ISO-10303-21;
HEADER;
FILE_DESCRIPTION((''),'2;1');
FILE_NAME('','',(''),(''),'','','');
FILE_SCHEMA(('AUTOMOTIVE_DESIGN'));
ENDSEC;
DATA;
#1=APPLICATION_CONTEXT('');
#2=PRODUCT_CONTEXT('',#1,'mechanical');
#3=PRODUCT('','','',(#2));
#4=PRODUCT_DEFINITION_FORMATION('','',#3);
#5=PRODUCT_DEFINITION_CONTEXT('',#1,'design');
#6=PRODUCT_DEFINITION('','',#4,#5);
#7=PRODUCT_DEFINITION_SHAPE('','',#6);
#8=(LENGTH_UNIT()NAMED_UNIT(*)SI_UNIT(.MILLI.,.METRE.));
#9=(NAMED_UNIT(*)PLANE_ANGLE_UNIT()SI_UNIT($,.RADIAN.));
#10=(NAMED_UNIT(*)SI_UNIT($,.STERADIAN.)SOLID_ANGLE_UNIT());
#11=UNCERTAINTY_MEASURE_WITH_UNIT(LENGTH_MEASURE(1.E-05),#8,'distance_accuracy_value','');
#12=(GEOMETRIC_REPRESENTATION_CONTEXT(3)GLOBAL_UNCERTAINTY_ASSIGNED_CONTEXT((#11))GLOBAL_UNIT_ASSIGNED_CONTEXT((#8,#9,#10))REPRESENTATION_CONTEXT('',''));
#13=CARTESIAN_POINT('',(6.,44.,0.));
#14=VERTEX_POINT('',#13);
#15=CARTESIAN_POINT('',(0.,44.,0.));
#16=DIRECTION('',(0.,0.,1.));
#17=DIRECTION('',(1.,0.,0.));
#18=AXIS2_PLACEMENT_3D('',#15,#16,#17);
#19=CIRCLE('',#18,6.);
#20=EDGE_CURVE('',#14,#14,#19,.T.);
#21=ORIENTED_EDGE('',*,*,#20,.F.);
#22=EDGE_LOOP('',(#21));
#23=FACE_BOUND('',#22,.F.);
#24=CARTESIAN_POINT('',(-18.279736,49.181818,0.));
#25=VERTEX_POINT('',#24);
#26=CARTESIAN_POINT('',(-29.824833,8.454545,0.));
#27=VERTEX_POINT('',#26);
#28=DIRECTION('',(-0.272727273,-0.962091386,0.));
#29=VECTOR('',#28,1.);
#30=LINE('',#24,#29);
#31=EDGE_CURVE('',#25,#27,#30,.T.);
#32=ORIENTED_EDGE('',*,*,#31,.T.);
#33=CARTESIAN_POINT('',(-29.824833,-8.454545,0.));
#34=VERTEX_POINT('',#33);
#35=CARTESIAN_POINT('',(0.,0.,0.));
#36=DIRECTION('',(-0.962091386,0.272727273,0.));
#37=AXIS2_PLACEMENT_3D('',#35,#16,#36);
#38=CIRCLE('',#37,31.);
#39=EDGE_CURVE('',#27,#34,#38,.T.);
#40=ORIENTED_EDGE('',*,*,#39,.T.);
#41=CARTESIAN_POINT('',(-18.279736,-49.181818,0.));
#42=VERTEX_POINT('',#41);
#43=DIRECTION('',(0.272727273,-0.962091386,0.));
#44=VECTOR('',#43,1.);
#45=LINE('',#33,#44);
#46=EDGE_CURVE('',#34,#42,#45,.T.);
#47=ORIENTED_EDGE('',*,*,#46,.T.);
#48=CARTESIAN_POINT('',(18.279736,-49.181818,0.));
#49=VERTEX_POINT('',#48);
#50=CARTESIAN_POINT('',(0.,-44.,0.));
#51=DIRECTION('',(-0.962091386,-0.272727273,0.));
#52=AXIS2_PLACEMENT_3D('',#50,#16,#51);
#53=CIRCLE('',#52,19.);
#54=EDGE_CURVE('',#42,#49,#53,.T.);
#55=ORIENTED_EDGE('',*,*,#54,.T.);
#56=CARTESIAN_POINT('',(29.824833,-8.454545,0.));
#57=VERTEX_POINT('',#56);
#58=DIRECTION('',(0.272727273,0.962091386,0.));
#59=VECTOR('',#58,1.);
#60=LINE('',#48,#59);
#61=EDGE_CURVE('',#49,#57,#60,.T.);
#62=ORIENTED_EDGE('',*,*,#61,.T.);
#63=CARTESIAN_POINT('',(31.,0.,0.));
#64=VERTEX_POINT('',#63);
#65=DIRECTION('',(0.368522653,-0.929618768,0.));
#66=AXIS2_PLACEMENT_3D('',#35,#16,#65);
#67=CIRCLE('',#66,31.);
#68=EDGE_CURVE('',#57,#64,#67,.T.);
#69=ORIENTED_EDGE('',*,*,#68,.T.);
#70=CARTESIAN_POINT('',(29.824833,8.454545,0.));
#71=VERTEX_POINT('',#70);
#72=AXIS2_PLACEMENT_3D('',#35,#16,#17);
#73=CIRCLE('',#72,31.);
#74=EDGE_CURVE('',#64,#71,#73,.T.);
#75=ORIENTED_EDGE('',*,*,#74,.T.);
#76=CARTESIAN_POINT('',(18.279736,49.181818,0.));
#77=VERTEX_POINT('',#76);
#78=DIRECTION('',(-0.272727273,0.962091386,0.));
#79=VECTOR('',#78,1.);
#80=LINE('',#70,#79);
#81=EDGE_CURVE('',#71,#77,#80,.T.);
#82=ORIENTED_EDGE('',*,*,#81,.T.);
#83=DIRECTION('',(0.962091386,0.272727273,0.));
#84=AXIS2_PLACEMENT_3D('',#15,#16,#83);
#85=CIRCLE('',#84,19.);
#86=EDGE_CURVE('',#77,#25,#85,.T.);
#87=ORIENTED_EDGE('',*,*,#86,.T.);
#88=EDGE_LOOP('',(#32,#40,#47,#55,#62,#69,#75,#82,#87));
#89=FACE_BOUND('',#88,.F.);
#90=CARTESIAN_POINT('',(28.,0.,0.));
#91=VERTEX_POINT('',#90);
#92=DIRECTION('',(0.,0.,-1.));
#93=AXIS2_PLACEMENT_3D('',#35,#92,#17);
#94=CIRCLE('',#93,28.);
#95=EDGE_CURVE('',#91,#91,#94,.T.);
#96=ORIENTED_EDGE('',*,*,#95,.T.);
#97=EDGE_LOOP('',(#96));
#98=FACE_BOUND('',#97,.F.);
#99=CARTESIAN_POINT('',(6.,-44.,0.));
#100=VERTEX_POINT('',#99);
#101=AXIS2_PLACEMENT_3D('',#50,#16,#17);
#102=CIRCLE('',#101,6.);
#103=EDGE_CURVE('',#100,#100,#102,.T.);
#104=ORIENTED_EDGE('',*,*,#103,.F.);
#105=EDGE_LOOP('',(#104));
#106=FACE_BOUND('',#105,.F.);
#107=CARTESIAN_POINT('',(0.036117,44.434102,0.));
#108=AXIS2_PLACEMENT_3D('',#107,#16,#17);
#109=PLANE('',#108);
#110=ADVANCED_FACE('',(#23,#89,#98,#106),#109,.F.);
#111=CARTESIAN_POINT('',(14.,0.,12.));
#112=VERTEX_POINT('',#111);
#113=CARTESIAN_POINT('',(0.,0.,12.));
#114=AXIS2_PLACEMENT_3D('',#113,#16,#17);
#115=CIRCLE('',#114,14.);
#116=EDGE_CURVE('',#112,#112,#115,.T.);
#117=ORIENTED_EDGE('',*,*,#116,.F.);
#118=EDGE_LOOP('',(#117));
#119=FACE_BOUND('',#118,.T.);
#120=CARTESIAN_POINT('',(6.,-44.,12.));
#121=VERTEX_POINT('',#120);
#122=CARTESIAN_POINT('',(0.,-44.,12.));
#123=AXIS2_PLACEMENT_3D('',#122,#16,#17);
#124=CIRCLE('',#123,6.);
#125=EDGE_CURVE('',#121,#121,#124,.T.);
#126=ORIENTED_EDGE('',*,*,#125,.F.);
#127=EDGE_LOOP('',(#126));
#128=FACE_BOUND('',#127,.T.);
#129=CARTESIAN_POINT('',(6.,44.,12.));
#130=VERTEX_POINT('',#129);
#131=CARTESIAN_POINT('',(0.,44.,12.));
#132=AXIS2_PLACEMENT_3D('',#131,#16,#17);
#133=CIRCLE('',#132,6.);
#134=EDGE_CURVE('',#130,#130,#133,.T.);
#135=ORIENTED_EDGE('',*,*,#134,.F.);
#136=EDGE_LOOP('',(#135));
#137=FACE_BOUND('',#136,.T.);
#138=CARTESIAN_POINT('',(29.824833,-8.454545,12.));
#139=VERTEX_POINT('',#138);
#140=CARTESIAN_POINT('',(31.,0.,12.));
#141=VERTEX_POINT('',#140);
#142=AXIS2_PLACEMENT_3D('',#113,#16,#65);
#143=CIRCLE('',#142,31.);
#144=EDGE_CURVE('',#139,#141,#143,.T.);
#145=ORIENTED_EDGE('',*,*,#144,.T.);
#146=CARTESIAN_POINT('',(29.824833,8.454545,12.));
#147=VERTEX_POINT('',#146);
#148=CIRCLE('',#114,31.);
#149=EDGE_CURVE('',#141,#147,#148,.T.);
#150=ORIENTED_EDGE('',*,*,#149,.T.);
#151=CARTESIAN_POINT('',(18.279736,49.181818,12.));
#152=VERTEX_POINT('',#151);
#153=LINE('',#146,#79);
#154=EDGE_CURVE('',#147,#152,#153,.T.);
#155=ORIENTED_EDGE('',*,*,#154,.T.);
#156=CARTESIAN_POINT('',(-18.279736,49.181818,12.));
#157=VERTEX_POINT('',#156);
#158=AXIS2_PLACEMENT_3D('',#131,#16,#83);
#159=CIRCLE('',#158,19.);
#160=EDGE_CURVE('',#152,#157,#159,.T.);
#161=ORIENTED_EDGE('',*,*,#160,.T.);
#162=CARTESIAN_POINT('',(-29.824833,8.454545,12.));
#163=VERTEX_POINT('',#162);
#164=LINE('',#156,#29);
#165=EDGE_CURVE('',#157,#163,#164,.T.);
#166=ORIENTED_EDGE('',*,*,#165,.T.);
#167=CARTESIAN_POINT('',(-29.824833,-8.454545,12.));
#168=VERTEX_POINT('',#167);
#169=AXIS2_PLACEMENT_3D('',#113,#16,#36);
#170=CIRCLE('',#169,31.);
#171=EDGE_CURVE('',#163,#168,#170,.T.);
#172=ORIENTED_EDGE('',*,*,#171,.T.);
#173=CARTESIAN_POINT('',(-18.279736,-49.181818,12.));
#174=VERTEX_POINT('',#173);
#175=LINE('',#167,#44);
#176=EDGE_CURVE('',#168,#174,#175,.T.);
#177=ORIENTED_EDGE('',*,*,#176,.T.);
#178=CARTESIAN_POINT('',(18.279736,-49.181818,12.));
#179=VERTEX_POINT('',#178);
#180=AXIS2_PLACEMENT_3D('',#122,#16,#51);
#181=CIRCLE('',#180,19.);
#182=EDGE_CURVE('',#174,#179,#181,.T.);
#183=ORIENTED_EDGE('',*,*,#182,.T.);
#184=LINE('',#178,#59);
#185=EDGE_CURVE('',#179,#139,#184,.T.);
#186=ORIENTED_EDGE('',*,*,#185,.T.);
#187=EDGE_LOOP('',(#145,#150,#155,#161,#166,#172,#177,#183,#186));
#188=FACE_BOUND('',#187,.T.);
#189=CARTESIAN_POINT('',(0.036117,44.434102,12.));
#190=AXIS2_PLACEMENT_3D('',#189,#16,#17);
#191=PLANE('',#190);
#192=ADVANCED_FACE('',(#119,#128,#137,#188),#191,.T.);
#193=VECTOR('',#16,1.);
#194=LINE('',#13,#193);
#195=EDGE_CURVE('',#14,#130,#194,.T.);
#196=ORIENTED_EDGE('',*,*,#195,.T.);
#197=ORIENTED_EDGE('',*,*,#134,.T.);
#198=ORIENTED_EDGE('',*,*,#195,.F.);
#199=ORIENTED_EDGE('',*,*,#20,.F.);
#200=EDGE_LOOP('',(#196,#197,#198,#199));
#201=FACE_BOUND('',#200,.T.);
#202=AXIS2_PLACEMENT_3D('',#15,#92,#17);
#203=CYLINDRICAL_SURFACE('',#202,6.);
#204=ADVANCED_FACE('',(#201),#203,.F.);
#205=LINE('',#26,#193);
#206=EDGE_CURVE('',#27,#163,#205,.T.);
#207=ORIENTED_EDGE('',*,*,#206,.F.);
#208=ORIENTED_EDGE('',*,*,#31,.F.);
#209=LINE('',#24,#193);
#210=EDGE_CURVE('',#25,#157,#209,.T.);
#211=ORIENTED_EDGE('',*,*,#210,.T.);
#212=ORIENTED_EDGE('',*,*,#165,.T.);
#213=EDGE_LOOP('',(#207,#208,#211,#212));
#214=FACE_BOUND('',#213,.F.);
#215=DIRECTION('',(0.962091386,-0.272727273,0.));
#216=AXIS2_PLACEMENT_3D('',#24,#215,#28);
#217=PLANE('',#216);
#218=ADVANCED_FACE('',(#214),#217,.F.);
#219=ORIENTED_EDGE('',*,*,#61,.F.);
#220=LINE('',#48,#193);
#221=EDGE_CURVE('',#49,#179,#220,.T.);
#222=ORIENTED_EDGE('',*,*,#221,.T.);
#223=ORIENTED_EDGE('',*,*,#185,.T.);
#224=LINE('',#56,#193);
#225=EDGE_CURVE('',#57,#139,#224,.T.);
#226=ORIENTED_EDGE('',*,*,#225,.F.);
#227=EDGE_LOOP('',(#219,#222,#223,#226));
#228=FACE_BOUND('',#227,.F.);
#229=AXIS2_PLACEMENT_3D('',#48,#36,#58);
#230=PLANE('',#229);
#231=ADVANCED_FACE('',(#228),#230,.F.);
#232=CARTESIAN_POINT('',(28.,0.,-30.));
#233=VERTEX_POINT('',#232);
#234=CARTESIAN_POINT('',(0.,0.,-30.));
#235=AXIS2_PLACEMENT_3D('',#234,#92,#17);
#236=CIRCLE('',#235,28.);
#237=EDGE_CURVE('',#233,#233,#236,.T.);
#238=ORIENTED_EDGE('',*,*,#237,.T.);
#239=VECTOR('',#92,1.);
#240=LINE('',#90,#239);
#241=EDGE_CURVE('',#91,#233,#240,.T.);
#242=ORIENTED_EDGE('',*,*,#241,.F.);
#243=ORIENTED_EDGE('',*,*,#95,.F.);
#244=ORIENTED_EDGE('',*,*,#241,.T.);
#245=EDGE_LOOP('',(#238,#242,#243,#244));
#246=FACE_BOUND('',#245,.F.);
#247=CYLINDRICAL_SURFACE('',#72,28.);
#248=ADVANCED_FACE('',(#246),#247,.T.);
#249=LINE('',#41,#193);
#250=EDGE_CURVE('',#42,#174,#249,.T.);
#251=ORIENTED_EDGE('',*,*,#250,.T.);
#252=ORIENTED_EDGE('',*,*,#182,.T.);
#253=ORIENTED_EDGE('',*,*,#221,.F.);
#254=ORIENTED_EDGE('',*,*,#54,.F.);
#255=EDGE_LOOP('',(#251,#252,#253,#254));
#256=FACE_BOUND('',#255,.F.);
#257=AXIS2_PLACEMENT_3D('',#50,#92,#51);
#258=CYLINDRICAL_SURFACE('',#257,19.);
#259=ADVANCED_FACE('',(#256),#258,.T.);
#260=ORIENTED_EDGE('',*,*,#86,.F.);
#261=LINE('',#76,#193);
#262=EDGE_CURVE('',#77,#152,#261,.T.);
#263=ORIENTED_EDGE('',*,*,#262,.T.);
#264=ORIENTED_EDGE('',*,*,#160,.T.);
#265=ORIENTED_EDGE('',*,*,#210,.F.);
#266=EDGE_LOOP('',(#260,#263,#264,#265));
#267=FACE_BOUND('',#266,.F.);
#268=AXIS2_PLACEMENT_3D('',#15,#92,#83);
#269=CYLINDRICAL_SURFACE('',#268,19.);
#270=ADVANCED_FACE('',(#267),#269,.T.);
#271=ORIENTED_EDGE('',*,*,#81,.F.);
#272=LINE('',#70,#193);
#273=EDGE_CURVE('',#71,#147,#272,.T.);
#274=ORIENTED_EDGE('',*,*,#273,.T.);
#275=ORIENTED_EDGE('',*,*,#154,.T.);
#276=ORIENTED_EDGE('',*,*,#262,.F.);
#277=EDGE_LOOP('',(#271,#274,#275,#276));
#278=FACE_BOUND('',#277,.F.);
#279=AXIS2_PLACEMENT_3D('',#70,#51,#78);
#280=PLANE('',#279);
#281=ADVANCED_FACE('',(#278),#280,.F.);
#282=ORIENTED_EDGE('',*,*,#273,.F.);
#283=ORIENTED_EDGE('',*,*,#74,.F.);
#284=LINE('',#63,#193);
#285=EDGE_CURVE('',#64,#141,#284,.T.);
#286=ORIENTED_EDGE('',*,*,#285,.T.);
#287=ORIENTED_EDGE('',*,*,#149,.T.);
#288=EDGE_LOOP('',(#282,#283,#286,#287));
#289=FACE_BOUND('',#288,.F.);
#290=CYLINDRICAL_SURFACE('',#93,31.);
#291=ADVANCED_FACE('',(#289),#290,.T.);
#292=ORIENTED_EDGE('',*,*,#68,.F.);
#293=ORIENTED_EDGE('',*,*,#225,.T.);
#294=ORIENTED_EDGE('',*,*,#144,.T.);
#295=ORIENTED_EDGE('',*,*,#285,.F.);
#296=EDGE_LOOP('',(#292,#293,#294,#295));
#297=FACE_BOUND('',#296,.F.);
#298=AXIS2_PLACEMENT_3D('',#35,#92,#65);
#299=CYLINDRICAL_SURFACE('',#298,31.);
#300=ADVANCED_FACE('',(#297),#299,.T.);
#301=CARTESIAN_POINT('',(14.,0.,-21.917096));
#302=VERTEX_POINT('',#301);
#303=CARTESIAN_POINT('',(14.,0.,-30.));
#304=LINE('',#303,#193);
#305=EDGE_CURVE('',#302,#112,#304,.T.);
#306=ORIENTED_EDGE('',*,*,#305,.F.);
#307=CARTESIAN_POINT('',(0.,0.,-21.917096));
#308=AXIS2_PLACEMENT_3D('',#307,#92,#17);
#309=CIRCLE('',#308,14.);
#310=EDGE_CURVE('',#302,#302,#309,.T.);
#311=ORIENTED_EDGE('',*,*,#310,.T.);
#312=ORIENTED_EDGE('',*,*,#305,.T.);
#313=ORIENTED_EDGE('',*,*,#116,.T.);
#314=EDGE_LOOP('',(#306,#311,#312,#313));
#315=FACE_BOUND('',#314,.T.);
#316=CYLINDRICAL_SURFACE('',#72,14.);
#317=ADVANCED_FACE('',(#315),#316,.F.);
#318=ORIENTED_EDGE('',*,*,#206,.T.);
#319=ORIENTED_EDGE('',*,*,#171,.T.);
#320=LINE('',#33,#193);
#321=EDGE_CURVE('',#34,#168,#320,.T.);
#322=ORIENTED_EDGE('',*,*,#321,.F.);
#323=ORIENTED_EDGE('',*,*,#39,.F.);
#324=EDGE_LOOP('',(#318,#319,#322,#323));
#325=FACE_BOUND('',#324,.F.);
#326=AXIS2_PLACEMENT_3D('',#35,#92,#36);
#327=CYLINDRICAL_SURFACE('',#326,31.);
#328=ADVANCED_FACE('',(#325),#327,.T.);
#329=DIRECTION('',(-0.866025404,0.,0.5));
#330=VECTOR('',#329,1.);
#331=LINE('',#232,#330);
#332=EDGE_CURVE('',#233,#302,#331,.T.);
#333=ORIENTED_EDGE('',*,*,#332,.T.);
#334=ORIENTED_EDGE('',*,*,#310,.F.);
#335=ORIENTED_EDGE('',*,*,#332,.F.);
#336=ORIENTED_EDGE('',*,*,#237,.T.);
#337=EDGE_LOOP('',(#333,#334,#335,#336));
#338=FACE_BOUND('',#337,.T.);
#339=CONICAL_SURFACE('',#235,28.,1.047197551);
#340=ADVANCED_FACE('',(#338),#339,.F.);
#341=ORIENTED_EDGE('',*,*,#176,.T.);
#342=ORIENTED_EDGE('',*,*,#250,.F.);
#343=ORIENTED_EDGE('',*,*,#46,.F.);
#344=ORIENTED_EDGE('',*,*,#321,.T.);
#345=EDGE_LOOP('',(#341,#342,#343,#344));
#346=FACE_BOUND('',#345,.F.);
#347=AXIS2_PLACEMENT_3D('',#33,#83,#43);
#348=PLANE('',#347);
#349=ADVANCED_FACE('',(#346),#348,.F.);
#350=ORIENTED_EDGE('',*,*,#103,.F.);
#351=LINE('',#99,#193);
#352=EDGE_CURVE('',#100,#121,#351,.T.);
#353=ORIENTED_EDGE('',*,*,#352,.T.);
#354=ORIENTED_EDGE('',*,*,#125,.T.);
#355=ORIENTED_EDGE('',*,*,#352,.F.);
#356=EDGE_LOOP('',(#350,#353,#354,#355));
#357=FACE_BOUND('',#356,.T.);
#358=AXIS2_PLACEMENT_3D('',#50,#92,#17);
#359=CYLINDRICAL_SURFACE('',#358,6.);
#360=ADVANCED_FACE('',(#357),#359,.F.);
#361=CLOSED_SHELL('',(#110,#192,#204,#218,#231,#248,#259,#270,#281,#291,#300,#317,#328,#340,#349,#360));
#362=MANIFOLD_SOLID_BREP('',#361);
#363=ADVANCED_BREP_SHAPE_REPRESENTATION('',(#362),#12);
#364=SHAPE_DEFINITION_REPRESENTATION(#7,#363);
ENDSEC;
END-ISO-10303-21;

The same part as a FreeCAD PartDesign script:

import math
import FreeCAD as App
import Part
import Sketcher
Q = App.Units.Quantity


def add_polygon(sketch, points):
    """Adds a closed chain of lines whose ends are joined by coincident constraints."""
    first, n = sketch.GeometryCount, len(points)
    for a, b in zip(points, points[1:] + points[:1]):
        sketch.addGeometry(Part.LineSegment(App.Vector(*a, 0), App.Vector(*b, 0)), False)
    for i in range(n):
        sketch.addConstraint(Sketcher.Constraint("Coincident", first + i, 2, first + (i + 1) % n, 1))

doc = App.newDocument("Part")
body = doc.addObject("PartDesign::Body", "Body")

sketch1 = body.newObject("Sketcher::SketchObject", "Sketch")
sketch1.AttachmentSupport = (doc.getObject("XY_Plane"), [""])
sketch1.MapMode = "FlatFace"
sketch1.addGeometry([
    Part.ArcOfCircle(Part.Circle(App.Vector(0, 44, 0), App.Vector(0, 0, 1), 19), math.radians(15.82662), math.radians(164.17338)),
    Part.LineSegment(App.Vector(-18.279736, 49.181818, 0), App.Vector(-29.824833, 8.454545, 0)),
    Part.ArcOfCircle(Part.Circle(App.Vector(0, 0, 0), App.Vector(0, 0, 1), 31), math.radians(164.17338), math.radians(195.82662)),
    Part.LineSegment(App.Vector(-29.824833, -8.454545, 0), App.Vector(-18.279736, -49.181818, 0)),
    Part.ArcOfCircle(Part.Circle(App.Vector(0, -44, 0), App.Vector(0, 0, 1), 19), math.radians(-164.17338), math.radians(-15.82662)),
    Part.LineSegment(App.Vector(18.279736, -49.181818, 0), App.Vector(29.824833, -8.454545, 0)),
    Part.ArcOfCircle(Part.Circle(App.Vector(0, 0, 0), App.Vector(0, 0, 1), 31), math.radians(-15.82662), math.radians(0)),
    Part.ArcOfCircle(Part.Circle(App.Vector(0, 0, 0), App.Vector(0, 0, 1), 31), math.radians(0), math.radians(15.82662)),
    Part.LineSegment(App.Vector(29.824833, 8.454545, 0), App.Vector(18.279736, 49.181818, 0)),
    Part.Circle(App.Vector(0, -44, 0), App.Vector(0, 0, 1), 6),
    Part.Circle(App.Vector(0, 0, 0), App.Vector(0, 0, 1), 14),
    Part.Circle(App.Vector(0, 44, 0), App.Vector(0, 0, 1), 6),
], False)
sketch1.addConstraint([
    Sketcher.Constraint("Tangent", 0, 2, 1, 1),
    Sketcher.Constraint("Tangent", 1, 2, 2, 1),
    Sketcher.Constraint("Tangent", 2, 2, 3, 1),
    Sketcher.Constraint("Tangent", 3, 2, 4, 1),
    Sketcher.Constraint("Tangent", 4, 2, 5, 1),
    Sketcher.Constraint("Tangent", 5, 2, 6, 1),
    Sketcher.Constraint("Tangent", 6, 2, 7, 1),
    Sketcher.Constraint("Tangent", 7, 2, 8, 1),
    Sketcher.Constraint("Tangent", 8, 2, 0, 1),
    Sketcher.Constraint("Coincident", 2, 3, -1, 1),
    Sketcher.Constraint("Coincident", 6, 3, -1, 1),
    Sketcher.Constraint("Coincident", 10, 3, -1, 1),
    Sketcher.Constraint("Coincident", 9, 3, 4, 3),
    Sketcher.Constraint("Coincident", 11, 3, 0, 3),
    Sketcher.Constraint("Equal", 0, 4),
    Sketcher.Constraint("Equal", 2, 6),
    Sketcher.Constraint("Equal", 6, 7),
    Sketcher.Constraint("Equal", 9, 11),
    Sketcher.Constraint("Symmetric", 0, 3, 4, 3, -1, 1),
    Sketcher.Constraint("PointOnObject", 0, 3, -2),
    Sketcher.Constraint("PointOnObject", 6, 2, -1),
    Sketcher.Constraint("Diameter", 9, Q("12 mm")),
    Sketcher.Constraint("Diameter", 10, Q("28 mm")),
    Sketcher.Constraint("Radius", 0, Q("19 mm")),
    Sketcher.Constraint("Radius", 2, Q("31 mm")),
    Sketcher.Constraint("DistanceY", -1, 1, 0, 3, Q("44 mm")),
])
pad1 = body.newObject("PartDesign::Pad", "Pad")
pad1.Profile = sketch1
pad1.Length = 12

sketch2 = body.newObject("Sketcher::SketchObject", "Sketch001")
sketch2.AttachmentSupport = (doc.getObject("XY_Plane"), [""])
sketch2.MapMode = "FlatFace"
sketch2.addGeometry([
    Part.Circle(App.Vector(0, 0, 0), App.Vector(0, 0, 1), 28),
    Part.Circle(App.Vector(0, 0, 0), App.Vector(0, 0, 1), 14),
], False)
sketch2.addConstraint([
    Sketcher.Constraint("Coincident", 0, 3, -1, 1),
    Sketcher.Constraint("Coincident", 1, 3, -1, 1),
    Sketcher.Constraint("Diameter", 0, Q("56 mm")),
    Sketcher.Constraint("Diameter", 1, Q("28 mm")),
])
pad2 = body.newObject("PartDesign::Pad", "Pad001")
pad2.Profile = sketch2
pad2.Length = 30
pad2.Reversed = True

sketch3 = body.newObject("Sketcher::SketchObject", "Sketch002")
sketch3.AttachmentSupport = (doc.getObject("XZ_Plane"), [""])
sketch3.MapMode = "FlatFace"
add_polygon(sketch3, [(28, -30), (14, -21.917096), (14, -30)])
sketch3.addConstraint([
    Sketcher.Constraint("Vertical", 1),
    Sketcher.Constraint("Horizontal", 2),
    Sketcher.Constraint("DistanceX", 2, 1, 2, 2, Q("14 mm")),
    Sketcher.Constraint("Angle", 0, Q("150 deg")),
    Sketcher.Constraint("DistanceX", -1, 1, 0, 2, Q("14 mm")),
    Sketcher.Constraint("DistanceY", 1, 2, -1, 1, Q("30 mm")),
])
groove = body.newObject("PartDesign::Groove", "Groove")
groove.Profile = sketch3
groove.ReferenceAxis = (sketch3, ["V_Axis"])
groove.Angle = 360

doc.recompute()
